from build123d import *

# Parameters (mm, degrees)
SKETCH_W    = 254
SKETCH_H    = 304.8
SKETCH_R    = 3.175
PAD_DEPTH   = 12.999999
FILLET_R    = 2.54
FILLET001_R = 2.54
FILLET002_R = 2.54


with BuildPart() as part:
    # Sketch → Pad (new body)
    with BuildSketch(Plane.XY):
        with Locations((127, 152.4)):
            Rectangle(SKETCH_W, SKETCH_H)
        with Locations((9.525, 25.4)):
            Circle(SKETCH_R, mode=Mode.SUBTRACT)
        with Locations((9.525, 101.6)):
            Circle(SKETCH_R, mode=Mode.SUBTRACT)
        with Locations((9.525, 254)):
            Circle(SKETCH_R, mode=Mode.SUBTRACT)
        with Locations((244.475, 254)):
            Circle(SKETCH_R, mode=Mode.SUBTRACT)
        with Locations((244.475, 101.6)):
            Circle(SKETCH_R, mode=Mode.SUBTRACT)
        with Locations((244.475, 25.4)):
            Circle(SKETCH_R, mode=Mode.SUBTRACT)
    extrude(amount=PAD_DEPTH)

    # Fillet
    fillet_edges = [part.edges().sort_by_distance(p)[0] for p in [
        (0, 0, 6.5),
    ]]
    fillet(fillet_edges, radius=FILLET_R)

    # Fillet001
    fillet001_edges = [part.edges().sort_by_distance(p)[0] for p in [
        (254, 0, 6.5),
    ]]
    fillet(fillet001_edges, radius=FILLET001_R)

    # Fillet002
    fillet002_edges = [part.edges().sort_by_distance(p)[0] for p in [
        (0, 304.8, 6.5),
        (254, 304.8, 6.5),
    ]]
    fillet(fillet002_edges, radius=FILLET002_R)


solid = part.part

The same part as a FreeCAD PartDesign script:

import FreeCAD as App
import Part
import Sketcher

V = App.Vector
Q = App.Units.Quantity


def edges_at(feature, points):
    """Names of the edges that pass closest to the given points."""
    edges = feature.Shape.Edges
    near = lambda p: min(range(len(edges)), key=lambda i: edges[i].distToShape(Part.Vertex(*p))[0])
    return sorted({f"Edge{near(p) + 1}" for p in points})

doc = App.newDocument("Part")
body = doc.addObject("PartDesign::Body", "Body")

# Sketch on XY plane
sketch1 = body.newObject("Sketcher::SketchObject", "Sketch")
sketch1.AttachmentSupport = (doc.getObject("XY_Plane"), [""])
sketch1.MapMode = "FlatFace"
sketch1.addGeometry(Part.LineSegment(V(0, 304.8, 0), V(0, 0, 0)), False)
sketch1.addGeometry(Part.LineSegment(V(0, 0, 0), V(254, 0, 0)), False)
sketch1.addGeometry(Part.LineSegment(V(254, 0, 0), V(254, 304.8, 0)), False)
sketch1.addGeometry(Part.LineSegment(V(254, 304.8, 0), V(0, 304.8, 0)), False)
sketch1.addGeometry(Part.Circle(V(9.5, 25.4, 0), V(0, 0, 1), 3.2), False)
sketch1.addGeometry(Part.Circle(V(9.5, 101.6, 0), V(0, 0, 1), 3.2), False)
sketch1.addGeometry(Part.Circle(V(244.5, 25.4, 0), V(0, 0, 1), 3.2), False)
sketch1.addGeometry(Part.Circle(V(244.5, 101.6, 0), V(0, 0, 1), 3.2), False)
sketch1.addGeometry(Part.Circle(V(9.5, 254, 0), V(0, 0, 1), 3.2), False)
sketch1.addGeometry(Part.Circle(V(244.5, 254, 0), V(0, 0, 1), 3.2), False)
sketch1.addConstraint(Sketcher.Constraint("Coincident", 0, 2, 1, 1))
sketch1.addConstraint(Sketcher.Constraint("Coincident", 1, 2, 2, 1))
sketch1.addConstraint(Sketcher.Constraint("Coincident", 2, 2, 3, 1))
sketch1.addConstraint(Sketcher.Constraint("Coincident", 3, 2, 0, 1))
sketch1.addConstraint(Sketcher.Constraint("Vertical", 0))
sketch1.addConstraint(Sketcher.Constraint("Horizontal", 1))
sketch1.addConstraint(Sketcher.Constraint("Vertical", 2))
sketch1.addConstraint(Sketcher.Constraint("Horizontal", 3))
sketch1.addConstraint(Sketcher.Constraint("Coincident", 0, 2, -1, 1))
sketch1.addConstraint(Sketcher.Constraint("Equal", 4, 5))
sketch1.addConstraint(Sketcher.Constraint("Equal", 5, 6))
sketch1.addConstraint(Sketcher.Constraint("Equal", 6, 7))
sketch1.addConstraint(Sketcher.Constraint("Equal", 7, 8))
sketch1.addConstraint(Sketcher.Constraint("Equal", 8, 9))
sketch1.addConstraint(Sketcher.Constraint("Horizontal", 4, 3, 6, 3))
sketch1.addConstraint(Sketcher.Constraint("Horizontal", 5, 3, 7, 3))
sketch1.addConstraint(Sketcher.Constraint("Horizontal", 8, 3, 9, 3))
sketch1.addConstraint(Sketcher.Constraint("Vertical", 4, 3, 5, 3))
sketch1.addConstraint(Sketcher.Constraint("Vertical", 6, 3, 7, 3))
sketch1.addConstraint(Sketcher.Constraint("Vertical", 5, 3, 8, 3))
sketch1.addConstraint(Sketcher.Constraint("Vertical", 7, 3, 9, 3))
sketch1.addConstraint(Sketcher.Constraint("Diameter", 4, Q("0.25 in")))
sketch1.addConstraint(Sketcher.Constraint("DistanceX", 1, 1, 1, 2, Q("10 in")))
sketch1.addConstraint(Sketcher.Constraint("DistanceY", 0, 2, 0, 1, Q("12 in")))
sketch1.addConstraint(Sketcher.Constraint("DistanceY", -1, 1, 4, 3, Q("1 in")))
sketch1.addConstraint(Sketcher.Constraint("DistanceY", -1, 1, 5, 3, Q("4 in")))
sketch1.addConstraint(Sketcher.Constraint("DistanceY", -1, 1, 8, 3, Q("10 in")))
sketch1.addConstraint(Sketcher.Constraint("DistanceX", 4, 3, 6, 3, Q("9.25 in")))
sketch1.addConstraint(Sketcher.Constraint("DistanceX", -1, 1, 4, 3, Q("0.375 in")))
pad1 = body.newObject("PartDesign::Pad", "Pad")
pad1.Profile = sketch1
pad1.Length = 12.999999
doc.recompute()

fillet = body.newObject("PartDesign::Fillet", "Fillet")
fillet.Base = (pad1, edges_at(pad1, [(0, 0, 6.5)]))
fillet.Radius = Q("0.1 in")
doc.recompute()

fillet2 = body.newObject("PartDesign::Fillet", "Fillet001")
fillet2.Base = (fillet, edges_at(fillet, [(254, 0, 6.5)]))
fillet2.Radius = Q("0.1 in")
doc.recompute()

fillet3 = body.newObject("PartDesign::Fillet", "Fillet002")
fillet3.Base = (fillet2, edges_at(fillet2, [(0, 304.8, 6.5), (254, 304.8, 6.5)]))
fillet3.Radius = Q("0.1 in")

doc.recompute()
